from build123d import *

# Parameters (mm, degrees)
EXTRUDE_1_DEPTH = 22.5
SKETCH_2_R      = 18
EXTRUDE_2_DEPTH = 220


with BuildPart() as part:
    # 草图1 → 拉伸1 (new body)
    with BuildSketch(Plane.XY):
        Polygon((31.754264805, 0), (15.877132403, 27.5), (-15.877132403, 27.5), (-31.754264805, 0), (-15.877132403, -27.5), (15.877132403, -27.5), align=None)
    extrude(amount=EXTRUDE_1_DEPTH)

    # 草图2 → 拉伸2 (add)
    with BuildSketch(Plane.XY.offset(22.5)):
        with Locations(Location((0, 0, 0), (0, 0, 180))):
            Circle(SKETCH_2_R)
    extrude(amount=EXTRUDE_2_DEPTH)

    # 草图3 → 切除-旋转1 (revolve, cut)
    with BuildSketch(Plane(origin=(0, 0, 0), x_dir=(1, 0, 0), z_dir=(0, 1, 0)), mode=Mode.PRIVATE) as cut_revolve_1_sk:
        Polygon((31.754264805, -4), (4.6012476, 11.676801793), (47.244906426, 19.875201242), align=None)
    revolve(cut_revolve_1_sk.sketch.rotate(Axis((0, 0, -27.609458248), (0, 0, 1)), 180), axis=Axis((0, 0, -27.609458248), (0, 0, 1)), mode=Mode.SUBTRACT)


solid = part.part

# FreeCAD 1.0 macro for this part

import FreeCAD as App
import Part
import Sketcher
Q = App.Units.Quantity

doc = App.newDocument("Part")
body = doc.addObject("PartDesign::Body", "Body")

# Sketch on XY plane
sketch1 = body.newObject("Sketcher::SketchObject", "Sketch")
sketch1.AttachmentSupport = (doc.getObject("XY_Plane"), [""])
sketch1.MapMode = "FlatFace"
sketch1.addGeometry(Part.LineSegment(App.Vector(31.754265, 0, 0), App.Vector(15.877132, 27.5, 0)), False)
sketch1.addGeometry(Part.LineSegment(App.Vector(15.877132, 27.5, 0), App.Vector(-15.877132, 27.5, 0)), False)
sketch1.addGeometry(Part.LineSegment(App.Vector(-15.877132, 27.5, 0), App.Vector(-31.754265, 0, 0)), False)
sketch1.addGeometry(Part.LineSegment(App.Vector(-31.754265, 0, 0), App.Vector(-15.877132, -27.5, 0)), False)
sketch1.addGeometry(Part.LineSegment(App.Vector(-15.877132, -27.5, 0), App.Vector(15.877132, -27.5, 0)), False)
sketch1.addGeometry(Part.LineSegment(App.Vector(15.877132, -27.5, 0), App.Vector(31.754265, 0, 0)), False)
sketch1.addConstraint(Sketcher.Constraint("Coincident", 0, 2, 1, 1))
sketch1.addConstraint(Sketcher.Constraint("Coincident", 1, 2, 2, 1))
sketch1.addConstraint(Sketcher.Constraint("Coincident", 2, 2, 3, 1))
sketch1.addConstraint(Sketcher.Constraint("Coincident", 3, 2, 4, 1))
sketch1.addConstraint(Sketcher.Constraint("Coincident", 4, 2, 5, 1))
sketch1.addConstraint(Sketcher.Constraint("Coincident", 5, 2, 0, 1))
sketch1.addConstraint(Sketcher.Constraint("Horizontal", 1))
sketch1.addConstraint(Sketcher.Constraint("Horizontal", 4))
sketch1.addConstraint(Sketcher.Constraint("Symmetric", 0, 2, 3, 2, -1, 1))
sketch1.addConstraint(Sketcher.Constraint("Symmetric", 2, 2, 5, 2, -1, 1))
sketch1.addConstraint(Sketcher.Constraint("PointOnObject", 2, 2, -1))
sketch1.addConstraint(Sketcher.Constraint("Parallel", 2, 5))
sketch1.addConstraint(Sketcher.Constraint("Vertical", 1, 2, 3, 2))
sketch1.addConstraint(Sketcher.Constraint("Angle", 0, Q("120 deg")))
sketch1.addConstraint(Sketcher.Constraint("DistanceY", 3, 2, 1, 2, 55.0))
sketch1.addConstraint(Sketcher.Constraint("DistanceX", 1, 2, 1, 1, 31.754265))
pad1 = body.newObject("PartDesign::Pad", "Pad")
pad1.Profile = sketch1
pad1.Length = 22.5

# Sketch on XY plane
sketch2 = body.newObject("Sketcher::SketchObject", "Sketch001")
sketch2.AttachmentSupport = (doc.getObject("XY_Plane"), [""])
sketch2.MapMode = "FlatFace"
sketch2.AttachmentOffset = App.Placement(App.Vector(0, 0, 22.5), App.Rotation())
sketch2.addGeometry(Part.Circle(App.Vector(0, 0, 0), App.Vector(0, 0, 1), 18), False)
sketch2.addConstraint(Sketcher.Constraint("Coincident", 0, 3, -1, 1))
sketch2.addConstraint(Sketcher.Constraint("Diameter", 0, 36.0))
pad2 = body.newObject("PartDesign::Pad", "Pad001")
pad2.Profile = sketch2
pad2.Length = 220

# Sketch on XZ plane
sketch3 = body.newObject("Sketcher::SketchObject", "Sketch002")
sketch3.AttachmentSupport = (doc.getObject("XZ_Plane"), [""])
sketch3.MapMode = "FlatFace"
sketch3.addGeometry(Part.LineSegment(App.Vector(4.601248, -11.676802, 0), App.Vector(31.754265, 4, 0)), False)
sketch3.addGeometry(Part.LineSegment(App.Vector(31.754265, 4, 0), App.Vector(47.244906, -19.875201, 0)), False)
sketch3.addGeometry(Part.LineSegment(App.Vector(47.244906, -19.875201, 0), App.Vector(4.601248, -11.676802, 0)), False)
sketch3.addConstraint(Sketcher.Constraint("Coincident", 0, 2, 1, 1))
sketch3.addConstraint(Sketcher.Constraint("Coincident", 1, 2, 2, 1))
sketch3.addConstraint(Sketcher.Constraint("Coincident", 2, 2, 0, 1))
sketch3.addConstraint(Sketcher.Constraint("Angle", 0, Q("30 deg")))
sketch3.addConstraint(Sketcher.Constraint("DistanceY", -1, 1, 0, 2, 4.0))
sketch3.addConstraint(Sketcher.Constraint("DistanceY", 1, 2, -1, 1, 19.875201))
sketch3.addConstraint(Sketcher.Constraint("DistanceY", 2, 2, -1, 1, 11.676802))
sketch3.addConstraint(Sketcher.Constraint("Distance", 1, 28.460239))
sketch3.addConstraint(Sketcher.Constraint("DistanceX", -1, 1, 0, 2, 31.754265))
groove = body.newObject("PartDesign::Groove", "Groove")
groove.Profile = sketch3
groove.ReferenceAxis = (sketch3, ["V_Axis"])
groove.Angle = 360

doc.recompute()
